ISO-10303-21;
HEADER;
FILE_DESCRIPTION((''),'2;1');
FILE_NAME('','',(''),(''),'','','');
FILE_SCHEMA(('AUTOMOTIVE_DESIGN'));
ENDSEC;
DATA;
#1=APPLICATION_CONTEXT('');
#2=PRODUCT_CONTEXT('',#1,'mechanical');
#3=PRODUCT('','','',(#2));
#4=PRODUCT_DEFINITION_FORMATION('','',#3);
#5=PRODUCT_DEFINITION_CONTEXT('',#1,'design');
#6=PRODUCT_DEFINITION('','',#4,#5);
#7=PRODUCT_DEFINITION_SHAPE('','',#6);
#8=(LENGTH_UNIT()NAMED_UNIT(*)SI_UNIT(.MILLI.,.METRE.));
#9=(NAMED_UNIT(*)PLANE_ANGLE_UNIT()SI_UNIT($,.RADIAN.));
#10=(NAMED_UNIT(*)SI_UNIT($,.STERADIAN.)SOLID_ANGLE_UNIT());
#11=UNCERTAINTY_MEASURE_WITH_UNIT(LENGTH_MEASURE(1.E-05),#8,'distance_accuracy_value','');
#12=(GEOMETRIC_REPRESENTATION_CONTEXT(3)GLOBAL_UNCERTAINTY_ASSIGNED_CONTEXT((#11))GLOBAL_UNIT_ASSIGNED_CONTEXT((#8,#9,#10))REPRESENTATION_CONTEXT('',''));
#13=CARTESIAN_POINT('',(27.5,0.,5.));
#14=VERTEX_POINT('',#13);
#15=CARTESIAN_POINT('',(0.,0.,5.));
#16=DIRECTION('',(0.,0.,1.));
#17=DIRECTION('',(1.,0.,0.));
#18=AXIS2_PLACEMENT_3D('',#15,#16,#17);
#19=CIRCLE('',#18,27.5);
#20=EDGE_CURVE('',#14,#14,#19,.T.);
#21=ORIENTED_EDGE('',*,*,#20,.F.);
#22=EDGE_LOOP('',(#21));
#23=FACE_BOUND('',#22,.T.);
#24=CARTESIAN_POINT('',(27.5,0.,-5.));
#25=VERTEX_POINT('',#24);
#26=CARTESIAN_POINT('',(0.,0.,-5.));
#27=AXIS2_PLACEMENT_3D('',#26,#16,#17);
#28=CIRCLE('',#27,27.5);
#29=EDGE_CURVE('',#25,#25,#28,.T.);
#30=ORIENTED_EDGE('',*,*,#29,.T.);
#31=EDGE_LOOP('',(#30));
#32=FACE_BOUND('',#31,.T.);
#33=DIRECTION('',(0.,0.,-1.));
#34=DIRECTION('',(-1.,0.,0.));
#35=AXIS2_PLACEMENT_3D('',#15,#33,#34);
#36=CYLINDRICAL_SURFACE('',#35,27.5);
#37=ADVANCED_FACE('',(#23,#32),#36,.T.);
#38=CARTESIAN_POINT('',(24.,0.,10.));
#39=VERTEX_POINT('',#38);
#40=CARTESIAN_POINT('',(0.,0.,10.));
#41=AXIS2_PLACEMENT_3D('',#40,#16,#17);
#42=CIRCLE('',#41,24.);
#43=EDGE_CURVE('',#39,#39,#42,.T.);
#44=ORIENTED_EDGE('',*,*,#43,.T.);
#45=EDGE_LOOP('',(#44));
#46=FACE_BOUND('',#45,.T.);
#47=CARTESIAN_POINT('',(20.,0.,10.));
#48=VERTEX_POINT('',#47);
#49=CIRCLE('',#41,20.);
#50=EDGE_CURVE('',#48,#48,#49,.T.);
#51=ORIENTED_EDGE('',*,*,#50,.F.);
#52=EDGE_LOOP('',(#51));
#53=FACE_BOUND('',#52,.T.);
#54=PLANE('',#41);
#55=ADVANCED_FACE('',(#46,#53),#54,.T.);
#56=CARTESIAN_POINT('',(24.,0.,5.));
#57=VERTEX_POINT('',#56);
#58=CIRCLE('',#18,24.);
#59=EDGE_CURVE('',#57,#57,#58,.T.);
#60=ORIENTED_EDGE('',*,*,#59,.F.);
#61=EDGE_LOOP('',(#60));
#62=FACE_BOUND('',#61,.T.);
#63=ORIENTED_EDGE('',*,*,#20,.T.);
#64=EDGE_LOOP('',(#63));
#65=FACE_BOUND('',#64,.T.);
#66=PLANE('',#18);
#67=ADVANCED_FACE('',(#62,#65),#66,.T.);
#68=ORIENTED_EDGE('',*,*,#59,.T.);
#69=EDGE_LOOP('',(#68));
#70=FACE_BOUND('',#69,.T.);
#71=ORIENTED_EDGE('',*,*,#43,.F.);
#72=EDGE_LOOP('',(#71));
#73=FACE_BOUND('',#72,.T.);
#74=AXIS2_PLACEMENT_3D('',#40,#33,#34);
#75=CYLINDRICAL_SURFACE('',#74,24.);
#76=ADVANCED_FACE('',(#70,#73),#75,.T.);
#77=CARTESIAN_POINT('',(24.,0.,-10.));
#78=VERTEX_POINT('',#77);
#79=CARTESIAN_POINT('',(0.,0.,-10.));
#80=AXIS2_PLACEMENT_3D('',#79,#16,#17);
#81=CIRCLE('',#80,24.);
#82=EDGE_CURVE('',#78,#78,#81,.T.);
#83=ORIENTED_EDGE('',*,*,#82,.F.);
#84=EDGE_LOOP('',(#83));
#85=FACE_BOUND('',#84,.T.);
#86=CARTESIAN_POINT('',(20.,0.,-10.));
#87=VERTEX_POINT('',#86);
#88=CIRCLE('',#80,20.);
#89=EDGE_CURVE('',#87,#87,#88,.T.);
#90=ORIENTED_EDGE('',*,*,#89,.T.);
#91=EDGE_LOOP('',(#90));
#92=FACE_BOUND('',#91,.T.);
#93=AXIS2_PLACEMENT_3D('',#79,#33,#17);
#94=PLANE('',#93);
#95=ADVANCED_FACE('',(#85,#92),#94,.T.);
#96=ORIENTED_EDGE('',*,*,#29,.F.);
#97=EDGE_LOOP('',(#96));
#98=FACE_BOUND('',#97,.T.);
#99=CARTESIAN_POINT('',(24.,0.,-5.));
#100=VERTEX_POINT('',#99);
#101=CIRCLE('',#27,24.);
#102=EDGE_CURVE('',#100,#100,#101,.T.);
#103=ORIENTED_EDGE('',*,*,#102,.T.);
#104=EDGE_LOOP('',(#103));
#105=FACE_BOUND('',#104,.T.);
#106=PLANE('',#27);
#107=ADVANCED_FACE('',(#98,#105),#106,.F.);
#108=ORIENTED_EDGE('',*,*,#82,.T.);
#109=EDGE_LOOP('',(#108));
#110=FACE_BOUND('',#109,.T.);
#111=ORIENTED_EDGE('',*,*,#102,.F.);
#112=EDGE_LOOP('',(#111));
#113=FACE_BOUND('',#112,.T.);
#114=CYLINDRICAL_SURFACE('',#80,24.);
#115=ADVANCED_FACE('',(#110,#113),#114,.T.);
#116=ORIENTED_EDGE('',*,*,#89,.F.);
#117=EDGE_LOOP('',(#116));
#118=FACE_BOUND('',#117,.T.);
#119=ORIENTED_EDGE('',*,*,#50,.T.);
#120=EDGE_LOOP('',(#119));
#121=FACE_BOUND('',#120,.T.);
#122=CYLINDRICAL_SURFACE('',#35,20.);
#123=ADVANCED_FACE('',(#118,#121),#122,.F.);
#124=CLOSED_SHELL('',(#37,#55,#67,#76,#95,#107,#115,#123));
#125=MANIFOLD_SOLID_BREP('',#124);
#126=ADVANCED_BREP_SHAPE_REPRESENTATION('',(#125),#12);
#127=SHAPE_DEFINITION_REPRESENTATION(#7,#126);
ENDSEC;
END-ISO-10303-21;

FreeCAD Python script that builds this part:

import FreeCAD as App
import Part
import Sketcher
Q = App.Units.Quantity

doc = App.newDocument("Part")
params = doc.addObject("Spreadsheet::Sheet", "Params")
for row, (alias, value) in enumerate([
    ("sketch1_diameter", "55 mm"),
    ("sketch1_diameter2", "40 mm"),
    ("pad1_length", "10 mm"),
    ("sketch2_diameter", "48 mm"),
    ("sketch2_diameter2", "40 mm"),
    ("pad2_length", "5 mm"),
], start=1):
    params.set(f"A{row}", alias)
    params.set(f"B{row}", "=" + value)
    params.setAlias(f"B{row}", alias)

body = doc.addObject("PartDesign::Body", "Body")

# Sketch on XY plane
sketch1 = body.newObject("Sketcher::SketchObject", "Sketch")
sketch1.AttachmentSupport = (doc.getObject("XY_Plane"), [""])
sketch1.MapMode = "FlatFace"
sketch1.addGeometry([
    Part.Circle(App.Vector(0, 0, 0), App.Vector(0, 0, 1), 27.5),
    Part.Circle(App.Vector(0, 0, 0), App.Vector(0, 0, 1), 20),
], False)
sketch1.addConstraint([
    Sketcher.Constraint("Coincident", 0, 3, -1, 1),
    Sketcher.Constraint("Coincident", 1, 3, -1, 1),
    Sketcher.Constraint("Diameter", 0, Q("55 mm")),
    Sketcher.Constraint("Diameter", 1, Q("40 mm")),
])
sketch1.setExpression("Constraints[2]", "Params.sketch1_diameter")
sketch1.setExpression("Constraints[3]", "Params.sketch1_diameter2")
pad1 = body.newObject("PartDesign::Pad", "Pad")
pad1.Profile = sketch1
pad1.setExpression("Length", "Params.pad1_length")
pad1.Midplane = True

# Sketch on XY plane
sketch2 = body.newObject("Sketcher::SketchObject", "Sketch001")
sketch2.AttachmentSupport = (doc.getObject("XY_Plane"), [""])
sketch2.MapMode = "FlatFace"
sketch2.AttachmentOffset = App.Placement(App.Vector(0, 0, 5), App.Rotation())
sketch2.addGeometry([
    Part.Circle(App.Vector(0, 0, 0), App.Vector(0, 0, 1), 24),
    Part.Circle(App.Vector(0, 0, 0), App.Vector(0, 0, 1), 20),
], False)
sketch2.addConstraint([
    Sketcher.Constraint("Coincident", 0, 3, -1, 1),
    Sketcher.Constraint("Coincident", 1, 3, -1, 1),
    Sketcher.Constraint("Diameter", 0, Q("48 mm")),
    Sketcher.Constraint("Diameter", 1, Q("40 mm")),
])
sketch2.setExpression("Constraints[2]", "Params.sketch2_diameter")
sketch2.setExpression("Constraints[3]", "Params.sketch2_diameter2")
pad2 = body.newObject("PartDesign::Pad", "Pad001")
pad2.Profile = sketch2
pad2.setExpression("Length", "Params.pad2_length")
doc.recompute()

mirrored = body.newObject("PartDesign::Mirrored", "Mirrored")
mirrored.Originals = [pad2]
mirrored.MirrorPlane = (doc.getObject("XY_Plane"), [""])
body.Tip = mirrored

doc.recompute()
